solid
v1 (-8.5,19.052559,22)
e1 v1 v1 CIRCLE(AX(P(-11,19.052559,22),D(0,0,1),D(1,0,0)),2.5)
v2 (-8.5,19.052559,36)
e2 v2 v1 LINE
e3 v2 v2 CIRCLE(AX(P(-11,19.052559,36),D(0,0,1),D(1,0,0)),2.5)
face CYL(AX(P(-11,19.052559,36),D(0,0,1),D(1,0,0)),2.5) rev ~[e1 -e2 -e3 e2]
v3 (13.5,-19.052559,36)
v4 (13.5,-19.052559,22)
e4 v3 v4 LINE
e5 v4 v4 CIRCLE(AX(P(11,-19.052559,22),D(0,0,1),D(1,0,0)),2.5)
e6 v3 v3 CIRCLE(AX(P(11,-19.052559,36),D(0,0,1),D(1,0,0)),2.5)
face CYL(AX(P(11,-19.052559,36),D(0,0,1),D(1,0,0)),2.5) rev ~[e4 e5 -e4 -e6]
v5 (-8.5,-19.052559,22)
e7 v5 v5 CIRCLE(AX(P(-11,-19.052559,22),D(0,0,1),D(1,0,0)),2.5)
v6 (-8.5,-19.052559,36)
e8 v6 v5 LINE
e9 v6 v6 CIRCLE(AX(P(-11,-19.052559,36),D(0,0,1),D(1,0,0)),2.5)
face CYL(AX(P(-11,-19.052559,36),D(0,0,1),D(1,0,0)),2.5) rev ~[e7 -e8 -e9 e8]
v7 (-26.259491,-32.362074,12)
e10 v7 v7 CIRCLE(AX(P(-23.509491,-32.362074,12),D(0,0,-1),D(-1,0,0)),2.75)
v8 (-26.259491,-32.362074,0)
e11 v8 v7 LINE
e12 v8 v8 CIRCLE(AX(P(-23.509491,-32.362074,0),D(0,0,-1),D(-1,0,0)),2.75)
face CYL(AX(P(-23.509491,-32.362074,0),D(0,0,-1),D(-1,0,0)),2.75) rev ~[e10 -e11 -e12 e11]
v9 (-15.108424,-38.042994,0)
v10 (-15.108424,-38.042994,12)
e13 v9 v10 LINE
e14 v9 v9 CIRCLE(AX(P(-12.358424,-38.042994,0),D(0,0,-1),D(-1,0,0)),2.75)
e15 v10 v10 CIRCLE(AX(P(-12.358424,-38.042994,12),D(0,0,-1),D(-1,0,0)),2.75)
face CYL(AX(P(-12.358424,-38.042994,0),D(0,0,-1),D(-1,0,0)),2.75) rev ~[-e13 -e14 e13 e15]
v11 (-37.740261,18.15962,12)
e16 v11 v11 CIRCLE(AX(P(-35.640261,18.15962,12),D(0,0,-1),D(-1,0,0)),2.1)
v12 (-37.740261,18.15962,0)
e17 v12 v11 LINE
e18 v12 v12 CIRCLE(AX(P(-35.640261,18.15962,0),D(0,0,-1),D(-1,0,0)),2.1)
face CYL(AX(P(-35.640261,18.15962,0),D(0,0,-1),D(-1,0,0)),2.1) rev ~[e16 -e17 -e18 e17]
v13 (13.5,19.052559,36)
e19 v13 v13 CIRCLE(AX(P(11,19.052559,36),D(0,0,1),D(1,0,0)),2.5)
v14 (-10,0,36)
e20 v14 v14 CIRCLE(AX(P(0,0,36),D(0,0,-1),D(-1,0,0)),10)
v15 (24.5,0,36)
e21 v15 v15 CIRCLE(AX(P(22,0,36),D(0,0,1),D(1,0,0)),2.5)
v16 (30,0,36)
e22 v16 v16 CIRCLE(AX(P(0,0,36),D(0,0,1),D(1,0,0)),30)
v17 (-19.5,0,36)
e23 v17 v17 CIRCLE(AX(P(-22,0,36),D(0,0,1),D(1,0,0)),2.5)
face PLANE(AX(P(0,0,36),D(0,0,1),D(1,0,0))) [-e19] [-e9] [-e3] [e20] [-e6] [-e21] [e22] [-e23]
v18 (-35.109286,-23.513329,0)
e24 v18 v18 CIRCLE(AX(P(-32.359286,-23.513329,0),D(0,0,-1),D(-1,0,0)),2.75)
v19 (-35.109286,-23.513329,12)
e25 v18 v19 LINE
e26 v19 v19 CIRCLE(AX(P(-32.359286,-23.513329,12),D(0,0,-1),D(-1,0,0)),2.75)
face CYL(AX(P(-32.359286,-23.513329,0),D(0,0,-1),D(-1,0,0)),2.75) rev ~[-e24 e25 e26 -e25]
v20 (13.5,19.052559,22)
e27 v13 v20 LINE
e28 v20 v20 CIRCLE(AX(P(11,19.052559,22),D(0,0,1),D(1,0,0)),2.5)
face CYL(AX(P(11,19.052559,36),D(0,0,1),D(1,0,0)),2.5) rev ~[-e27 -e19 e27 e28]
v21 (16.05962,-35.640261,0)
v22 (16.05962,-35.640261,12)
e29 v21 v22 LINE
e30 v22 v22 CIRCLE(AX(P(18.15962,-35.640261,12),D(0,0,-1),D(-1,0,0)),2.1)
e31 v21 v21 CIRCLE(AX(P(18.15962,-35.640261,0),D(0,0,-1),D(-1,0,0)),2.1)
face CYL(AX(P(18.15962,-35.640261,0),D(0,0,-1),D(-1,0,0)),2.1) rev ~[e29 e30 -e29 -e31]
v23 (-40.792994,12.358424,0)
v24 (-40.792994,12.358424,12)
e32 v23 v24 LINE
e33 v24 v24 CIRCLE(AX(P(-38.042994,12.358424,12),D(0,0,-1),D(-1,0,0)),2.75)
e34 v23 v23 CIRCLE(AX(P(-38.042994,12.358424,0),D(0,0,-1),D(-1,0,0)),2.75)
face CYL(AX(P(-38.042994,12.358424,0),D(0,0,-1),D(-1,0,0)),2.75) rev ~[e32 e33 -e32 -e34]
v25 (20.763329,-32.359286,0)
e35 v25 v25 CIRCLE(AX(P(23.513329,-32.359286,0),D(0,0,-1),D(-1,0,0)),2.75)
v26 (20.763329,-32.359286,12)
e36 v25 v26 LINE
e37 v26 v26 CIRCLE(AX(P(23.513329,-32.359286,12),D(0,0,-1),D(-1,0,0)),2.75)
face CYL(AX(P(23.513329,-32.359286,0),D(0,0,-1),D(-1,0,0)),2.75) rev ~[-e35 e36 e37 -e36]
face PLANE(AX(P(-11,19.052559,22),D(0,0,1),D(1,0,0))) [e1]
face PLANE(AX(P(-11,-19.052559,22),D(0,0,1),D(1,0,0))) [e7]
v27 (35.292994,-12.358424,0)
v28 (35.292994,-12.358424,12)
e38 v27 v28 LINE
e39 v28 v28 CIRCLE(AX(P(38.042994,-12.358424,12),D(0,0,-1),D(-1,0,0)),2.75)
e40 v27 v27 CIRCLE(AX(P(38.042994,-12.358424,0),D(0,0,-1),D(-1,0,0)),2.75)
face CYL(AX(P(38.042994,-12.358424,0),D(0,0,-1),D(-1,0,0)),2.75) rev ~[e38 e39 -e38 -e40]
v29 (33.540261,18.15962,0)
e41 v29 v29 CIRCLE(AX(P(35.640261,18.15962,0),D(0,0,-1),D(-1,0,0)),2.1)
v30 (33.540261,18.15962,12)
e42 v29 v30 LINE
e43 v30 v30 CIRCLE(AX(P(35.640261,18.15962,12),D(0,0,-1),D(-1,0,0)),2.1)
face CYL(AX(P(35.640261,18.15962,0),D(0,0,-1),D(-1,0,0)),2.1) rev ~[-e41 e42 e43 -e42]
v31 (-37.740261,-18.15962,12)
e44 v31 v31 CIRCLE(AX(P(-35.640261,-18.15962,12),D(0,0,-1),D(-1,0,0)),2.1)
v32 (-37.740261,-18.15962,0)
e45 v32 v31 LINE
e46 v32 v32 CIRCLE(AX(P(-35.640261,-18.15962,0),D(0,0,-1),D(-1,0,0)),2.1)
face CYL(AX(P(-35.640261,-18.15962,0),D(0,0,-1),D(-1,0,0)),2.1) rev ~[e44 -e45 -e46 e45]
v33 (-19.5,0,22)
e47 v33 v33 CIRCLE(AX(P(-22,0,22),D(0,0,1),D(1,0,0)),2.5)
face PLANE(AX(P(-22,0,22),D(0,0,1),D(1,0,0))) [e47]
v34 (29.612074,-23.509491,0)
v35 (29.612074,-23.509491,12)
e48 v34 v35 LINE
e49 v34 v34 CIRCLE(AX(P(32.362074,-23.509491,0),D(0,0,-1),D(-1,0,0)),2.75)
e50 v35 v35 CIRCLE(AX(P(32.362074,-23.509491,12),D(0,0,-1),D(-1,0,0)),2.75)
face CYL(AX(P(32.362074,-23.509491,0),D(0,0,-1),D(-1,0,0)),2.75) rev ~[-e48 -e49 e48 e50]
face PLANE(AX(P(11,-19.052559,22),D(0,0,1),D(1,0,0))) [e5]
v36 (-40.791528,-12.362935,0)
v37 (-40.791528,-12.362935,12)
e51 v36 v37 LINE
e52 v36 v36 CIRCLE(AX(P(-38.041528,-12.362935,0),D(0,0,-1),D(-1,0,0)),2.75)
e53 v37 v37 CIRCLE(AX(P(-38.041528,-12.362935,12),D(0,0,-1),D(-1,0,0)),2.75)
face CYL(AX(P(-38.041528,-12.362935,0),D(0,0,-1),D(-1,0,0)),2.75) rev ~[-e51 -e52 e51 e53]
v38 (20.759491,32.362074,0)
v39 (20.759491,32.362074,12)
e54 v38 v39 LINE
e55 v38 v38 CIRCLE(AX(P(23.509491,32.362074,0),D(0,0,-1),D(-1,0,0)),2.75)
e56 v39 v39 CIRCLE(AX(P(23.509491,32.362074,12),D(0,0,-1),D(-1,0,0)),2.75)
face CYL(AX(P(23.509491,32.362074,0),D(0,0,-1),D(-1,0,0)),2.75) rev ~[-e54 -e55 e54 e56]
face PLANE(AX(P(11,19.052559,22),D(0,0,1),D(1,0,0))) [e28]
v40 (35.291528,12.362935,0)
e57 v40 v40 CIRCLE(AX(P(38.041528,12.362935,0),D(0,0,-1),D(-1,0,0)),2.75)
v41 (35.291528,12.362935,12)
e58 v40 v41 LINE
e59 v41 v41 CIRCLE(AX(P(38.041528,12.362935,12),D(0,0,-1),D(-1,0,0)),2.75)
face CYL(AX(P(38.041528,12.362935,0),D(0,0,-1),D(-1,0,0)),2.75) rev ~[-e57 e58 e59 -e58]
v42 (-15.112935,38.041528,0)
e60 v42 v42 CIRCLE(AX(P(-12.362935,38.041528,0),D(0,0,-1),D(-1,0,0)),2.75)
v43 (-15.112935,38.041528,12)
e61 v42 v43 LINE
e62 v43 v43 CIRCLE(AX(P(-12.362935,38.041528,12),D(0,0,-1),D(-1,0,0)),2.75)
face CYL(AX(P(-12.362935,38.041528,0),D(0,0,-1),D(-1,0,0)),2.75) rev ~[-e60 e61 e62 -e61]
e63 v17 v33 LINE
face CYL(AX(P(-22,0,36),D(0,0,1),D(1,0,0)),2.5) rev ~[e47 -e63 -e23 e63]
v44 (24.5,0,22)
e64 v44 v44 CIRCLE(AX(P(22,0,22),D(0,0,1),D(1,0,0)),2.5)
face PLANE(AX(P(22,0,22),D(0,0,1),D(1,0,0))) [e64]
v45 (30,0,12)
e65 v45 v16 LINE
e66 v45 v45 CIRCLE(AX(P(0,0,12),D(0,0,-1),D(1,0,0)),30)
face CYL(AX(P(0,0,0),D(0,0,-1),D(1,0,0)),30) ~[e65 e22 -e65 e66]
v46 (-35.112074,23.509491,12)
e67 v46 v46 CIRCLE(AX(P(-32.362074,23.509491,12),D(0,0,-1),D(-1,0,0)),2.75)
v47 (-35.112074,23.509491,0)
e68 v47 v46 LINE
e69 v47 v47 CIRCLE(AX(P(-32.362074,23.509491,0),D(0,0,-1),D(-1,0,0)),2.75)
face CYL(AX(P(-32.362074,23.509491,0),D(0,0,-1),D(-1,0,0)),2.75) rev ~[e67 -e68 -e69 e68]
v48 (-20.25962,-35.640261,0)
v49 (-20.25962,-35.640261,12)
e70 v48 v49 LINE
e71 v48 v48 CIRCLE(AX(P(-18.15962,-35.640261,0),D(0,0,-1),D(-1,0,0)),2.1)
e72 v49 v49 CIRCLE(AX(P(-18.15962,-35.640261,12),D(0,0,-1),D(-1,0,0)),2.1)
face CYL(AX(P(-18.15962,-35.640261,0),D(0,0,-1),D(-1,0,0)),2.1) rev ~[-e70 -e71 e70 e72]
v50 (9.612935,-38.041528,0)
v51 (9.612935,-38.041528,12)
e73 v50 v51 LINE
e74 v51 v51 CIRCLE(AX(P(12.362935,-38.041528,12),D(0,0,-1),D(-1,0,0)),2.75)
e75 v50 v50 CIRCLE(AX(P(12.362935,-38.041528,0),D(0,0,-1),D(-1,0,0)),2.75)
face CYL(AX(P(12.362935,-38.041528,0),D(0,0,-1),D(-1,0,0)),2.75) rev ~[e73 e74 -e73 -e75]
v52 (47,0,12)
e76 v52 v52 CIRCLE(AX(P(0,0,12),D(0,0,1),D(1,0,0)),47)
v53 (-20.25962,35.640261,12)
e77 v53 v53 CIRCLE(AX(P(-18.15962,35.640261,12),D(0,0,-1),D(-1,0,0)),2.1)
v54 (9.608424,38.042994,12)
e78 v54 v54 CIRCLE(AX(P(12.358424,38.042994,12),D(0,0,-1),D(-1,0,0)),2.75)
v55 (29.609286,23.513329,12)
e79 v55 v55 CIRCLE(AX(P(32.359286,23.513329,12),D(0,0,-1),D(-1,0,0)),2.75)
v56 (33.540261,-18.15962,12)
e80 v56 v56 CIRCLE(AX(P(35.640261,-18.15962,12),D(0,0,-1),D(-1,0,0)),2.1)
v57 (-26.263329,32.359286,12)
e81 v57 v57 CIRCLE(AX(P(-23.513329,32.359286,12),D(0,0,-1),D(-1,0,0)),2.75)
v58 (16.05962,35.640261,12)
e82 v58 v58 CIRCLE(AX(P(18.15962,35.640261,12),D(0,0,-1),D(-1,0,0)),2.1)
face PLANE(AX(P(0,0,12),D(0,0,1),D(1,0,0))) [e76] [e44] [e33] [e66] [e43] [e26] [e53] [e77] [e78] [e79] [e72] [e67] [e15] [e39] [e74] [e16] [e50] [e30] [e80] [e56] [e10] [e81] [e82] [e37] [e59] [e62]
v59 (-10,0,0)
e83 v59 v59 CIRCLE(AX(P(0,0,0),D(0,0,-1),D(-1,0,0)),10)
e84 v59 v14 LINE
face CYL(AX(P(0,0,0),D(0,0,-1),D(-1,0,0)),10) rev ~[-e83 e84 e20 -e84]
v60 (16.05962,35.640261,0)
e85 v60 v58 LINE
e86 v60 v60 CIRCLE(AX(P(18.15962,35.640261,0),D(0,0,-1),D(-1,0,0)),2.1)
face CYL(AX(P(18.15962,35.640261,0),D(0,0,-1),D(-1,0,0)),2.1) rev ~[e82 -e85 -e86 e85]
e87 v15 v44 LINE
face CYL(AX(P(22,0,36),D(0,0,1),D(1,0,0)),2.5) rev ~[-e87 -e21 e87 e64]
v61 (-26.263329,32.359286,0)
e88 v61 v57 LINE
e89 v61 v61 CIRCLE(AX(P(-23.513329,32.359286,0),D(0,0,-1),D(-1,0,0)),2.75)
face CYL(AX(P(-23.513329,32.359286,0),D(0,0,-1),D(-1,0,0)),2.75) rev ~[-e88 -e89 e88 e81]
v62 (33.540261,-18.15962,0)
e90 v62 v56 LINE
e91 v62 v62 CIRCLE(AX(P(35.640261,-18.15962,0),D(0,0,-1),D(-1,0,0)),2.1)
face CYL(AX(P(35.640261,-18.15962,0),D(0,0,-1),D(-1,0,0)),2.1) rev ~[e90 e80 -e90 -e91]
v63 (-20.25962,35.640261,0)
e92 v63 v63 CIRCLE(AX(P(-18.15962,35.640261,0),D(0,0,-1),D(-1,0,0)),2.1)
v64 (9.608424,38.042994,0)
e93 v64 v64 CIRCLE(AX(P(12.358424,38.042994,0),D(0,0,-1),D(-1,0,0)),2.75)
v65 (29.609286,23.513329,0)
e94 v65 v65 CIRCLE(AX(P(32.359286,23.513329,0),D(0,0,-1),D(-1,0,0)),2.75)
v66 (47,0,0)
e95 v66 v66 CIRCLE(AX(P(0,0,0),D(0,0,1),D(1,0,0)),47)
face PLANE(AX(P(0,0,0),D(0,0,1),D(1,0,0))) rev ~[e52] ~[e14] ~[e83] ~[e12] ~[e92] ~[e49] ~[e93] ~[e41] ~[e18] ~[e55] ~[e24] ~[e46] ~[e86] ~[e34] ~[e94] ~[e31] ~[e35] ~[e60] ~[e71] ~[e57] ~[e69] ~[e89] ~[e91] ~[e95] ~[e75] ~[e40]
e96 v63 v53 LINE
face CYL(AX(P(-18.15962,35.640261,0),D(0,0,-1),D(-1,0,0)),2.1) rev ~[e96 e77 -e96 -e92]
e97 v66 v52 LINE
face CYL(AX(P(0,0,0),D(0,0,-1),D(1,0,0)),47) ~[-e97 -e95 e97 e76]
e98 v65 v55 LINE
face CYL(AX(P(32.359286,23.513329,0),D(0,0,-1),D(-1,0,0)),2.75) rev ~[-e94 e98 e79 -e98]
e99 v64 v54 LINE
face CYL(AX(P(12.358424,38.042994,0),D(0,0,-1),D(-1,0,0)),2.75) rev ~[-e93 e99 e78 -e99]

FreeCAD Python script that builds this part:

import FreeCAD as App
import Part
import Sketcher
from FreeCAD import Vector
Q = App.Units.Quantity

doc = App.newDocument("Part")
body = doc.addObject("PartDesign::Body", "Body")

# Sketch on XY plane
sketch1 = body.newObject("Sketcher::SketchObject", "Sketch")
sketch1.AttachmentSupport = (doc.getObject("XY_Plane"), [""])
sketch1.MapMode = "FlatFace"
sketch1.addGeometry(Part.Circle(Vector(0, 0, 0), Vector(0, 0, 1), 47), False)
sketch1.addConstraint([
    Sketcher.Constraint("Coincident", 0, 3, -1, 1),
    Sketcher.Constraint("Diameter", 0, Q("94 mm")),
])
pad1 = body.newObject("PartDesign::Pad", "Pad")
pad1.Profile = sketch1
pad1.Length = 12

# Sketch on XY plane
sketch2 = body.newObject("Sketcher::SketchObject", "Sketch001")
sketch2.AttachmentSupport = (doc.getObject("XY_Plane"), [""])
sketch2.MapMode = "FlatFace"
sketch2.addGeometry(Part.Circle(Vector(0, 0, 0), Vector(0, 0, 1), 30), False)
sketch2.addConstraint([
    Sketcher.Constraint("Coincident", 0, 3, -1, 1),
    Sketcher.Constraint("Diameter", 0, Q("60 mm")),
])
pad2 = body.newObject("PartDesign::Pad", "Pad001")
pad2.Profile = sketch2
pad2.Length = 36

# Sketch on XY plane
sketch3 = body.newObject("Sketcher::SketchObject", "Sketch002")
sketch3.AttachmentSupport = (doc.getObject("XY_Plane"), [""])
sketch3.MapMode = "FlatFace"
sketch3.addGeometry(Part.Circle(Vector(0, 0, 0), Vector(0, 0, 1), 10), False)
sketch3.addConstraint([
    Sketcher.Constraint("Coincident", 0, 3, -1, 1),
    Sketcher.Constraint("Diameter", 0, Q("20 mm")),
])
pocket1 = body.newObject("PartDesign::Pocket", "Pocket")
pocket1.Profile = sketch3
pocket1.Length = 37
pocket1.Reversed = True

# Sketch on XY plane
sketch4 = body.newObject("Sketcher::SketchObject", "Sketch003")
sketch4.AttachmentSupport = (doc.getObject("XY_Plane"), [""])
sketch4.MapMode = "FlatFace"
sketch4.addGeometry([
    Part.Circle(Vector(38.042994, -12.358424, 0), Vector(0, 0, 1), 2.75),  # 0
    Part.Circle(Vector(32.362074, -23.509491, 0), Vector(0, 0, 1), 2.75),  # 1
    Part.Circle(Vector(23.513329, -32.359286, 0), Vector(0, 0, 1), 2.75),  # 2
    Part.Circle(Vector(12.362935, -38.041528, 0), Vector(0, 0, 1), 2.75),  # 3
    Part.Circle(Vector(-12.358424, -38.042994, 0), Vector(0, 0, 1), 2.75),  # 4
    Part.Circle(Vector(-23.509491, -32.362074, 0), Vector(0, 0, 1), 2.75),  # 5
    Part.Circle(Vector(-32.359286, -23.513329, 0), Vector(0, 0, 1), 2.75),  # 6
    Part.Circle(Vector(-38.041528, -12.362935, 0), Vector(0, 0, 1), 2.75),  # 7
    Part.Circle(Vector(-38.042994, 12.358424, 0), Vector(0, 0, 1), 2.75),  # 8
    Part.Circle(Vector(-32.362074, 23.509491, 0), Vector(0, 0, 1), 2.75),  # 9
    Part.Circle(Vector(-23.513329, 32.359286, 0), Vector(0, 0, 1), 2.75),  # 10
    Part.Circle(Vector(-12.362935, 38.041528, 0), Vector(0, 0, 1), 2.75),  # 11
    Part.Circle(Vector(12.358424, 38.042994, 0), Vector(0, 0, 1), 2.75),  # 12
    Part.Circle(Vector(23.509491, 32.362074, 0), Vector(0, 0, 1), 2.75),  # 13
    Part.Circle(Vector(32.359286, 23.513329, 0), Vector(0, 0, 1), 2.75),  # 14
    Part.Circle(Vector(38.041528, 12.362935, 0), Vector(0, 0, 1), 2.75),  # 15
    Part.Circle(Vector(35.640261, 18.15962, 0), Vector(0, 0, 1), 2.1),  # 16
    Part.Circle(Vector(18.15962, 35.640261, 0), Vector(0, 0, 1), 2.1),  # 17
    Part.Circle(Vector(-18.15962, 35.640261, 0), Vector(0, 0, 1), 2.1),  # 18
    Part.Circle(Vector(-35.640261, 18.15962, 0), Vector(0, 0, 1), 2.1),  # 19
    Part.Circle(Vector(-35.640261, -18.15962, 0), Vector(0, 0, 1), 2.1),  # 20
    Part.Circle(Vector(-18.15962, -35.640261, 0), Vector(0, 0, 1), 2.1),  # 21
    Part.Circle(Vector(18.15962, -35.640261, 0), Vector(0, 0, 1), 2.1),  # 22
    Part.Circle(Vector(35.640261, -18.15962, 0), Vector(0, 0, 1), 2.1),  # 23
], False)
sketch4.addConstraint([
    Sketcher.Constraint("Equal", 0, 1),
    Sketcher.Constraint("Equal", 1, 2),
    Sketcher.Constraint("Equal", 2, 3),
    Sketcher.Constraint("Equal", 3, 4),
    Sketcher.Constraint("Equal", 4, 5),
    Sketcher.Constraint("Equal", 5, 6),
    Sketcher.Constraint("Equal", 6, 7),
    Sketcher.Constraint("Equal", 7, 8),
    Sketcher.Constraint("Equal", 8, 9),
    Sketcher.Constraint("Equal", 9, 10),
    Sketcher.Constraint("Equal", 10, 11),
    Sketcher.Constraint("Equal", 11, 12),
    Sketcher.Constraint("Equal", 12, 13),
    Sketcher.Constraint("Equal", 13, 14),
    Sketcher.Constraint("Equal", 14, 15),
    Sketcher.Constraint("Equal", 16, 17),
    Sketcher.Constraint("Equal", 17, 18),
    Sketcher.Constraint("Equal", 18, 19),
    Sketcher.Constraint("Equal", 19, 20),
    Sketcher.Constraint("Equal", 20, 21),
    Sketcher.Constraint("Equal", 21, 22),
    Sketcher.Constraint("Equal", 22, 23),
    Sketcher.Constraint("Symmetric", 0, 3, 8, 3, -1, 1),
    Sketcher.Constraint("Symmetric", 1, 3, 9, 3, -1, 1),
    Sketcher.Constraint("Symmetric", 2, 3, 10, 3, -1, 1),
    Sketcher.Constraint("Symmetric", 3, 3, 11, 3, -1, 1),
    Sketcher.Constraint("Symmetric", 4, 3, 12, 3, -1, 1),
    Sketcher.Constraint("Symmetric", 5, 3, 13, 3, -1, 1),
    Sketcher.Constraint("Symmetric", 6, 3, 14, 3, -1, 1),
    Sketcher.Constraint("Symmetric", 7, 3, 15, 3, -1, 1),
    Sketcher.Constraint("Symmetric", 16, 3, 20, 3, -1, 1),
    Sketcher.Constraint("Symmetric", 17, 3, 21, 3, -1, 1),
    Sketcher.Constraint("Symmetric", 18, 3, 22, 3, -1, 1),
    Sketcher.Constraint("Symmetric", 19, 3, 23, 3, -1, 1),
    Sketcher.Constraint("Symmetric", 17, 3, 18, 3, -2),
    Sketcher.Constraint("Symmetric", 16, 3, 19, 3, -2),
    Sketcher.Constraint("Diameter", 0, Q("5.5 mm")),
    Sketcher.Constraint("Diameter", 16, Q("4.2 mm")),
    Sketcher.Constraint("DistanceY", 3, 3, 6, 3, Q("14.528199 mm")),
    Sketcher.Constraint("DistanceX", 7, 3, 10, 3, Q("14.528199 mm")),
    Sketcher.Constraint("DistanceY", 1, 3, -1, 1, Q("23.509491 mm")),
    Sketcher.Constraint("DistanceX", -1, 1, 2, 3, Q("23.513329 mm")),
    Sketcher.Constraint("DistanceX", 5, 3, -1, 1, Q("23.509491 mm")),
    Sketcher.Constraint("DistanceY", 6, 3, -1, 1, Q("23.513329 mm")),
    Sketcher.Constraint("DistanceX", -1, 1, 16, 3, Q("35.640261 mm")),
    Sketcher.Constraint("DistanceY", -1, 1, 16, 3, Q("18.15962 mm")),
    Sketcher.Constraint("DistanceX", -1, 1, 17, 3, Q("18.15962 mm")),
    Sketcher.Constraint("DistanceY", -1, 1, 17, 3, Q("35.640261 mm")),
    Sketcher.Constraint("DistanceX", 1, 3, 0, 3, Q("5.68092 mm")),
    Sketcher.Constraint("DistanceY", 2, 3, 0, 3, Q("20.000862 mm")),
    Sketcher.Constraint("DistanceX", 3, 3, 1, 3, Q("19.999139 mm")),
    Sketcher.Constraint("DistanceX", 4, 3, 3, 3, Q("24.721359 mm")),
    Sketcher.Constraint("DistanceY", 4, 3, 2, 3, Q("5.683708 mm")),
    Sketcher.Constraint("DistanceY", 4, 3, 5, 3, Q("5.68092 mm")),
    Sketcher.Constraint("DistanceX", 6, 3, 4, 3, Q("20.000862 mm")),
    Sketcher.Constraint("DistanceY", 5, 3, 7, 3, Q("19.999139 mm")),
    Sketcher.Constraint("DistanceY", 7, 3, 8, 3, Q("24.721359 mm")),
    Sketcher.Constraint("DistanceX", 8, 3, 6, 3, Q("5.683708 mm")),
])
pocket2 = body.newObject("PartDesign::Pocket", "Pocket001")
pocket2.Profile = sketch4
pocket2.Length = 13
pocket2.Reversed = True

# Sketch on XY plane
sketch5 = body.newObject("Sketcher::SketchObject", "Sketch004")
sketch5.AttachmentSupport = (doc.getObject("XY_Plane"), [""])
sketch5.MapMode = "FlatFace"
sketch5.AttachmentOffset = App.Placement(Vector(0, 0, 36), App.Rotation())
sketch5.addGeometry([
    Part.Circle(Vector(22, 0, 0), Vector(0, 0, 1), 2.5),  # 0
    Part.Circle(Vector(11, 19.052559, 0), Vector(0, 0, 1), 2.5),  # 1
    Part.Circle(Vector(-11, 19.052559, 0), Vector(0, 0, 1), 2.5),  # 2
    Part.Circle(Vector(-22, 0, 0), Vector(0, 0, 1), 2.5),  # 3
    Part.Circle(Vector(-11, -19.052559, 0), Vector(0, 0, 1), 2.5),  # 4
    Part.Circle(Vector(11, -19.052559, 0), Vector(0, 0, 1), 2.5),  # 5
], False)
sketch5.addConstraint([
    Sketcher.Constraint("Equal", 0, 1),
    Sketcher.Constraint("Equal", 1, 2),
    Sketcher.Constraint("Equal", 2, 3),
    Sketcher.Constraint("Equal", 3, 4),
    Sketcher.Constraint("Equal", 4, 5),
    Sketcher.Constraint("Symmetric", 0, 3, 3, 3, -1, 1),
    Sketcher.Constraint("Symmetric", 1, 3, 4, 3, -1, 1),
    Sketcher.Constraint("Symmetric", 2, 3, 5, 3, -1, 1),
    Sketcher.Constraint("Symmetric", 1, 3, 2, 3, -2),
    Sketcher.Constraint("PointOnObject", 0, 3, -1),
    Sketcher.Constraint("Diameter", 0, Q("5 mm")),
    Sketcher.Constraint("DistanceX", -1, 1, 0, 3, Q("22 mm")),
    Sketcher.Constraint("DistanceX", -1, 1, 1, 3, Q("11 mm")),
    Sketcher.Constraint("DistanceY", -1, 1, 1, 3, Q("19.052559 mm")),
])
pocket3 = body.newObject("PartDesign::Pocket", "Pocket002")
pocket3.Profile = sketch5
pocket3.Length = 14

doc.recompute()
